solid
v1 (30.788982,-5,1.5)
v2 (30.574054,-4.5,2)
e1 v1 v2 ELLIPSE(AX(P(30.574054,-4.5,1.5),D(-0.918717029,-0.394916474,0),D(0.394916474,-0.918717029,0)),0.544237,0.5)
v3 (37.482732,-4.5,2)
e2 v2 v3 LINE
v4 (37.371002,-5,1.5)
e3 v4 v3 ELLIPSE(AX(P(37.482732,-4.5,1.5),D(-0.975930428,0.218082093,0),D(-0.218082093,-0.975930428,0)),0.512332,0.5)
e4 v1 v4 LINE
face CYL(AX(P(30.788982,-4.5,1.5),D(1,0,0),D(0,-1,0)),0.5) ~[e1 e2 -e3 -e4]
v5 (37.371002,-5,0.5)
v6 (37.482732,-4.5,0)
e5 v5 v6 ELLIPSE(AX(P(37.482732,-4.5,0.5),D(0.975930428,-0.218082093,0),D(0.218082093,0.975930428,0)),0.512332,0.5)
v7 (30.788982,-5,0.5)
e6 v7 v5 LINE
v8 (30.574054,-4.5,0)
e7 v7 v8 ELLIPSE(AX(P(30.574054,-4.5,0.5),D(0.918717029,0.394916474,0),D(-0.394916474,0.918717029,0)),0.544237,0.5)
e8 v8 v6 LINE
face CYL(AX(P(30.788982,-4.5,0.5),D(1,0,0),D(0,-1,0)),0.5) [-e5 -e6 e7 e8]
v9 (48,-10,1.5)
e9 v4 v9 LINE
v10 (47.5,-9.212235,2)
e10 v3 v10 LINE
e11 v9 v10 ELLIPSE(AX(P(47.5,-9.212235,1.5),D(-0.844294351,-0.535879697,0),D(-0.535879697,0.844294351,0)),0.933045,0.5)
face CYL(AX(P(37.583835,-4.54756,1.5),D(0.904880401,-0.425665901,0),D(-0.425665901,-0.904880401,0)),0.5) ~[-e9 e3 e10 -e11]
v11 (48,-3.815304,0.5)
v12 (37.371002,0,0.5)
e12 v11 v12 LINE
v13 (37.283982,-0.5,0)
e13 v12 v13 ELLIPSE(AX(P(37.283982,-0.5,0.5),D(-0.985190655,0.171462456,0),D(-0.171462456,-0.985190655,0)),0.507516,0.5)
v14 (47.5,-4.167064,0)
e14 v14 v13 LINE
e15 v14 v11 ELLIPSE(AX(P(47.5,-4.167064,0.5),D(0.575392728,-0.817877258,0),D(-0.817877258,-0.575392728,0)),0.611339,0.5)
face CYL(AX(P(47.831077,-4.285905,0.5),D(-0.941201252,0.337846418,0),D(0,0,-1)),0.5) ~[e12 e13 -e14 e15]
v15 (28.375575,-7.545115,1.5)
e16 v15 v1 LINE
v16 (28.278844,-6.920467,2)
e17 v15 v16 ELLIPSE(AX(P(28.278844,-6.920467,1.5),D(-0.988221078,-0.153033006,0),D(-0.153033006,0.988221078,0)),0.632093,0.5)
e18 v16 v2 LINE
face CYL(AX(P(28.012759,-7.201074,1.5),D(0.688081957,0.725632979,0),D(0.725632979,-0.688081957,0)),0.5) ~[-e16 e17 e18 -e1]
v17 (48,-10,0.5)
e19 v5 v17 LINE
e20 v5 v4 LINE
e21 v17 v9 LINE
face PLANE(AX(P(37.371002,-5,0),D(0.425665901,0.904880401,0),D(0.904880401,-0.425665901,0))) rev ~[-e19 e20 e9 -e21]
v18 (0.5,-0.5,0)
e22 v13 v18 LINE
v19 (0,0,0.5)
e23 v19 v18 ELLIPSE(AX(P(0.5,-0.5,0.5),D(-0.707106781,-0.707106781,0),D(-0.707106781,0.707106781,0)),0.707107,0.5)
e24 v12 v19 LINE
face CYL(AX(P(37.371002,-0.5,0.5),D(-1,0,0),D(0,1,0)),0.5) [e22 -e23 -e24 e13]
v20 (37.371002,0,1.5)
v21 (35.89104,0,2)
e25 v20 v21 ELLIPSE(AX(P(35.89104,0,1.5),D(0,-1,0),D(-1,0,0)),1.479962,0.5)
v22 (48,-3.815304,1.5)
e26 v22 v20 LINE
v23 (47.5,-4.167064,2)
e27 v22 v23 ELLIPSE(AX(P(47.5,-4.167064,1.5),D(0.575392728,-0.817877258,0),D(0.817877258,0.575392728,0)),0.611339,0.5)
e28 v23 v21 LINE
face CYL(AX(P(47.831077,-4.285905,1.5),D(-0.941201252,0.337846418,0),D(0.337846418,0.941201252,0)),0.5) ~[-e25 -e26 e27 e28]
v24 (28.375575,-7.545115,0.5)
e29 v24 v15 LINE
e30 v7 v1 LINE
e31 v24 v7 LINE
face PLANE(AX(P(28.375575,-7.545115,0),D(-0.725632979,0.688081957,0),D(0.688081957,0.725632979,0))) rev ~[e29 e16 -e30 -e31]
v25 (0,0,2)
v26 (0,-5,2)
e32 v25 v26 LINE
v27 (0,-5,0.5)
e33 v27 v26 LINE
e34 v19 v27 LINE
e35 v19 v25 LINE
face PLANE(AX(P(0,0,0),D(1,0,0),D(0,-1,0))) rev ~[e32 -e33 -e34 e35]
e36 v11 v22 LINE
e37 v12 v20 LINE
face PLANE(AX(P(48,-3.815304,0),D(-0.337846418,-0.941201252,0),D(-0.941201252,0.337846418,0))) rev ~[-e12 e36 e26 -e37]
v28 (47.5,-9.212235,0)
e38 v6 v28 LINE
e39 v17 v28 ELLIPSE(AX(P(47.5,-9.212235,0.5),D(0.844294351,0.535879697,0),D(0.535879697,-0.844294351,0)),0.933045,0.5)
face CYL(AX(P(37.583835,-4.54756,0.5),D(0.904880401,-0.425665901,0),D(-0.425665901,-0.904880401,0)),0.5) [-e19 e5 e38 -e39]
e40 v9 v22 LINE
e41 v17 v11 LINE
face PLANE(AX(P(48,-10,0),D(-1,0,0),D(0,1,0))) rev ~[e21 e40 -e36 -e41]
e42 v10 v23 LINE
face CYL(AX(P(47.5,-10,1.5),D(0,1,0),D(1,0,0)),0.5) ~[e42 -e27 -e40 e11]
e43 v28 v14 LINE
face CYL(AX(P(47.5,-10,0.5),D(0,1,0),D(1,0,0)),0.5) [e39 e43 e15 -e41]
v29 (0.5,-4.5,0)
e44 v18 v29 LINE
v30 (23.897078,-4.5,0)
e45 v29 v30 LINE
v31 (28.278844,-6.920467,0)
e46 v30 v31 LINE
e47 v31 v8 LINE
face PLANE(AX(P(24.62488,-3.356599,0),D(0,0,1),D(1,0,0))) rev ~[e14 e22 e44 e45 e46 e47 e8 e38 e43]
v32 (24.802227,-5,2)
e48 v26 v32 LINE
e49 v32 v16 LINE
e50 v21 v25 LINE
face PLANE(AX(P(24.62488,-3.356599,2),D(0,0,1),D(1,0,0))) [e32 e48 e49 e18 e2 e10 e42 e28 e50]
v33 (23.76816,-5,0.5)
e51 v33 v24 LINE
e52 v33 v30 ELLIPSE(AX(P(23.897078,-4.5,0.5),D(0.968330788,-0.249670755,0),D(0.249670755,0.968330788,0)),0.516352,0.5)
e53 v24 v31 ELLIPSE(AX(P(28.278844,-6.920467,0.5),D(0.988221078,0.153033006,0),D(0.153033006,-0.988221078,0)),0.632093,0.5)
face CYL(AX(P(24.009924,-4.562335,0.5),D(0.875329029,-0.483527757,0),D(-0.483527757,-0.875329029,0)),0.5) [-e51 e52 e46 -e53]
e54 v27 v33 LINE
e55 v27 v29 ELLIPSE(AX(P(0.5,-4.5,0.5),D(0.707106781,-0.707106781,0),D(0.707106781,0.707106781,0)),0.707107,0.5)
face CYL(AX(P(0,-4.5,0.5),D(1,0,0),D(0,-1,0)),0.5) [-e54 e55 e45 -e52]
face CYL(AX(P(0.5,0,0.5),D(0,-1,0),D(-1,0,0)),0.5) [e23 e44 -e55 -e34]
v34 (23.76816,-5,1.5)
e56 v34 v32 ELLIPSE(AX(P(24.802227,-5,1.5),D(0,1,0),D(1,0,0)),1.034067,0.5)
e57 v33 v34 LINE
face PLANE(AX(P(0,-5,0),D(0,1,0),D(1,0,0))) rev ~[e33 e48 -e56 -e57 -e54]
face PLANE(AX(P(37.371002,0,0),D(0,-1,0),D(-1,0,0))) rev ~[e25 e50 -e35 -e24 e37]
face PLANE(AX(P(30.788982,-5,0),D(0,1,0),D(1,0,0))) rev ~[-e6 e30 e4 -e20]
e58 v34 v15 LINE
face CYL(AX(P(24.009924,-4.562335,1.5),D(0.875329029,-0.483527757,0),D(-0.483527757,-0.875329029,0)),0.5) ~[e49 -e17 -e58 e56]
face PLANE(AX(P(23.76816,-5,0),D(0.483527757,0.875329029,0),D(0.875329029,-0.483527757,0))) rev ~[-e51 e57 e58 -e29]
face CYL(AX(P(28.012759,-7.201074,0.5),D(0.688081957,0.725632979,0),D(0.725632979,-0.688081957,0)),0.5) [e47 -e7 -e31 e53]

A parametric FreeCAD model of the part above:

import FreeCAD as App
import Part
import Sketcher

V = App.Vector
Q = App.Units.Quantity


def edges_at(feature, points):
    """Names of the edges that pass closest to the given points."""
    edges = feature.Shape.Edges
    near = lambda p: min(range(len(edges)), key=lambda i: edges[i].distToShape(Part.Vertex(*p))[0])
    return sorted({f"Edge{near(p) + 1}" for p in points})


def add_polygon(sketch, points):
    """Adds a closed chain of lines whose ends are joined by coincident constraints."""
    first, n = sketch.GeometryCount, len(points)
    for a, b in zip(points, points[1:] + points[:1]):
        sketch.addGeometry(Part.LineSegment(App.Vector(*a, 0), App.Vector(*b, 0)), False)
    for i in range(n):
        sketch.addConstraint(Sketcher.Constraint("Coincident", first + i, 2, first + (i + 1) % n, 1))

doc = App.newDocument("Part")
params = doc.addObject("Spreadsheet::Sheet", "Params")
for row, (alias, value) in enumerate([
    ("sketch1_height", "5 mm"),
    ("pad1_length", "2 mm"),
    ("fillet_radius", "0.5 mm"),
    ("fillet2_radius", "0.5 mm"),
], start=1):
    params.set(f"A{row}", alias)
    params.set(f"B{row}", "=" + value)
    params.setAlias(f"B{row}", alias)

body = doc.addObject("PartDesign::Body", "Body")

sketch1 = body.newObject("Sketcher::SketchObject", "Sketch")
sketch1.AttachmentSupport = (doc.getObject("XY_Plane"), [""])
sketch1.MapMode = "FlatFace"
add_polygon(sketch1, [(37.371002, 0), (0, 0), (0, -5), (23.76816, -5), (28.375575, -7.545115), (30.788982, -5), (37.371002, -5), (48, -10), (48, -3.815304)])
sketch1.addConstraint([
    Sketcher.Constraint("Horizontal", 0),
    Sketcher.Constraint("Vertical", 1),
    Sketcher.Constraint("Horizontal", 2),
    Sketcher.Constraint("Horizontal", 5),
    Sketcher.Constraint("Vertical", 7),
    Sketcher.Constraint("Coincident", 0, 2, -1, 1),
    Sketcher.Constraint("Horizontal", 2, 2, 4, 2),
    Sketcher.Constraint("Vertical", 5, 2, 8, 2),
    Sketcher.Constraint("DistanceY", 1, 2, 1, 1, Q("5 mm")),
    Sketcher.Constraint("DistanceX", -1, 1, 6, 2, Q("48 mm")),
    Sketcher.Constraint("DistanceY", 6, 2, -1, 1, Q("10 mm")),
    Sketcher.Constraint("DistanceX", 0, 2, 0, 1, Q("37.371002 mm")),
    Sketcher.Constraint("DistanceX", 2, 1, 2, 2, Q("23.76816 mm")),
    Sketcher.Constraint("DistanceX", 5, 1, 5, 2, Q("6.58202 mm")),
    Sketcher.Constraint("Distance", 4, Q("3.507441 mm")),
    Sketcher.Constraint("DistanceY", 7, 1, 7, 2, Q("6.184696 mm")),
    Sketcher.Constraint("DistanceY", 3, 2, 7, 2, Q("3.729811 mm")),
])
sketch1.setExpression("Constraints[17]", "Params.sketch1_height")
pad1 = body.newObject("PartDesign::Pad", "Pad")
pad1.Profile = sketch1
pad1.setExpression("Length", "Params.pad1_length")
doc.recompute()

fillet = body.newObject("PartDesign::Fillet", "Fillet")
fillet.Base = (pad1, edges_at(pad1, [
    (48, -6.908, 2),
    (42.686, -7.5, 2),
    (34.08, -5, 2),
    (29.582, -6.273, 2),
    (26.072, -6.273, 2),
    (42.686, -1.908, 2),
]))
fillet.setExpression("Radius", "Params.fillet_radius")
doc.recompute()

fillet2 = body.newObject("PartDesign::Fillet", "Fillet001")
fillet2.Base = (fillet, edges_at(fillet, [
    (11.884, -5, 0),
    (26.072, -6.273, 0),
    (29.582, -6.273, 0),
    (34.08, -5, 0),
    (42.686, -7.5, 0),
    (18.686, 0, 0),
    (42.686, -1.908, 0),
    (0, -2.5, 0),
    (48, -6.908, 0),
]))
fillet2.setExpression("Radius", "Params.fillet2_radius")

doc.recompute()
